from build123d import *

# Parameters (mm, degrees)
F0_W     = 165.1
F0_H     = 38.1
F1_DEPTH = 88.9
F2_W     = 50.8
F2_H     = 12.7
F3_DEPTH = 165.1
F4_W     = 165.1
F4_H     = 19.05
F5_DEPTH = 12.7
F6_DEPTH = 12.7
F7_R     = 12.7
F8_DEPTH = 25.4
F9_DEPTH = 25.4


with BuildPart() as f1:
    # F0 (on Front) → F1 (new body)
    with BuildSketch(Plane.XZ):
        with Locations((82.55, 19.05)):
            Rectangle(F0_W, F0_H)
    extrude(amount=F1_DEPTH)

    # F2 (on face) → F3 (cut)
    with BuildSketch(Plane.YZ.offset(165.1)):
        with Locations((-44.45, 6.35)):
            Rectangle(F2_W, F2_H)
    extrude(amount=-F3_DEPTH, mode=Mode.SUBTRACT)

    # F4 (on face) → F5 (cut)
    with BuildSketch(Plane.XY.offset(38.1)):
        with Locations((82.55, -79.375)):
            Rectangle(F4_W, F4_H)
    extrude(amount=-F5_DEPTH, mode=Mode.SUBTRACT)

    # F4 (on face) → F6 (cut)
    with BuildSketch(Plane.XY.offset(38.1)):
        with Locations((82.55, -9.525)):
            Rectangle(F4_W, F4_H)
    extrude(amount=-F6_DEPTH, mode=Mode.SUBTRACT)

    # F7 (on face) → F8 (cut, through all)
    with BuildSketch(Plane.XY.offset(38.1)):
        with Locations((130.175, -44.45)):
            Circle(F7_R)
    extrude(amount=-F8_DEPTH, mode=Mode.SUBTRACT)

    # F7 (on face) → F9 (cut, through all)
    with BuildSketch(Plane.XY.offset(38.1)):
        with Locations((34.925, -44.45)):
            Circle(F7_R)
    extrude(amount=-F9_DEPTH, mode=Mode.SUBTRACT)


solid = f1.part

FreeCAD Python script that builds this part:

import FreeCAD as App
import Part
import Sketcher
Q = App.Units.Quantity


def add_polygon(sketch, points):
    """Adds a closed chain of lines whose ends are joined by coincident constraints."""
    first, n = sketch.GeometryCount, len(points)
    for a, b in zip(points, points[1:] + points[:1]):
        sketch.addGeometry(Part.LineSegment(App.Vector(*a, 0), App.Vector(*b, 0)), False)
    for i in range(n):
        sketch.addConstraint(Sketcher.Constraint("Coincident", first + i, 2, first + (i + 1) % n, 1))

doc = App.newDocument("Part")
body = doc.addObject("PartDesign::Body", "Body")

sketch1 = body.newObject("Sketcher::SketchObject", "Sketch")
sketch1.AttachmentSupport = (doc.getObject("XZ_Plane"), [""])
sketch1.MapMode = "FlatFace"
add_polygon(sketch1, [(0, 38.1), (0, 0), (165.1, 0), (165.1, 38.1)])
sketch1.addConstraint([
    Sketcher.Constraint("Vertical", 0),
    Sketcher.Constraint("Horizontal", 1),
    Sketcher.Constraint("Vertical", 2),
    Sketcher.Constraint("Horizontal", 3),
    Sketcher.Constraint("Coincident", 0, 2, -1, 1),
    Sketcher.Constraint("DistanceX", 1, 1, 1, 2, Q("6.5 in")),
    Sketcher.Constraint("DistanceY", 0, 2, 0, 1, Q("1.5 in")),
])
pad1 = body.newObject("PartDesign::Pad", "Pad")
pad1.Profile = sketch1
pad1.Length = Q("3.5 in")

sketch2 = body.newObject("Sketcher::SketchObject", "Sketch001")
sketch2.AttachmentSupport = (doc.getObject("YZ_Plane"), [""])
sketch2.MapMode = "FlatFace"
sketch2.AttachmentOffset = App.Placement(App.Vector(0, 0, 6.5 * 25.4), App.Rotation())
add_polygon(sketch2, [(-69.85, 12.7), (-69.85, 0), (-19.05, 0), (-19.05, 12.7)])
sketch2.addConstraint([
    Sketcher.Constraint("Vertical", 0),
    Sketcher.Constraint("Horizontal", 1),
    Sketcher.Constraint("Vertical", 2),
    Sketcher.Constraint("Horizontal", 3),
    Sketcher.Constraint("PointOnObject", 0, 2, -1),
    Sketcher.Constraint("DistanceX", 1, 1, 1, 2, Q("2 in")),
    Sketcher.Constraint("DistanceY", 0, 2, 0, 1, Q("0.5 in")),
    Sketcher.Constraint("DistanceX", 0, 2, -1, 1, Q("2.75 in")),
])
pocket1 = body.newObject("PartDesign::Pocket", "Pocket")
pocket1.Profile = sketch2
pocket1.Length = Q("6.5 in")

sketch3 = body.newObject("Sketcher::SketchObject", "Sketch002")
sketch3.AttachmentSupport = (doc.getObject("XY_Plane"), [""])
sketch3.MapMode = "FlatFace"
sketch3.AttachmentOffset = App.Placement(App.Vector(0, 0, 1.5 * 25.4), App.Rotation())
add_polygon(sketch3, [(0, -69.85), (0, -88.9), (165.1, -88.9), (165.1, -69.85)])
sketch3.addConstraint([
    Sketcher.Constraint("Vertical", 0),
    Sketcher.Constraint("Horizontal", 1),
    Sketcher.Constraint("Vertical", 2),
    Sketcher.Constraint("Horizontal", 3),
    Sketcher.Constraint("PointOnObject", 0, 2, -2),
    Sketcher.Constraint("DistanceX", 1, 1, 1, 2, Q("6.5 in")),
    Sketcher.Constraint("DistanceY", 0, 2, 0, 1, Q("0.75 in")),
    Sketcher.Constraint("DistanceY", 0, 2, -1, 1, Q("3.5 in")),
])
pocket2 = body.newObject("PartDesign::Pocket", "Pocket001")
pocket2.Profile = sketch3
pocket2.Length = Q("0.5 in")

sketch4 = body.newObject("Sketcher::SketchObject", "Sketch003")
sketch4.AttachmentSupport = (doc.getObject("XY_Plane"), [""])
sketch4.MapMode = "FlatFace"
sketch4.AttachmentOffset = App.Placement(App.Vector(0, 0, 1.5 * 25.4), App.Rotation())
add_polygon(sketch4, [(0, 0), (0, -19.05), (165.1, -19.05), (165.1, 0)])
sketch4.addConstraint([
    Sketcher.Constraint("Vertical", 0),
    Sketcher.Constraint("Horizontal", 1),
    Sketcher.Constraint("Vertical", 2),
    Sketcher.Constraint("Horizontal", 3),
    Sketcher.Constraint("Coincident", 3, 2, -1, 1),
    Sketcher.Constraint("DistanceX", 1, 1, 1, 2, Q("6.5 in")),
    Sketcher.Constraint("DistanceY", 0, 2, 0, 1, Q("0.75 in")),
])
pocket3 = body.newObject("PartDesign::Pocket", "Pocket002")
pocket3.Profile = sketch4
pocket3.Length = Q("0.5 in")

sketch5 = body.newObject("Sketcher::SketchObject", "Sketch004")
sketch5.AttachmentSupport = (doc.getObject("XY_Plane"), [""])
sketch5.MapMode = "FlatFace"
sketch5.AttachmentOffset = App.Placement(App.Vector(0, 0, 1.5 * 25.4), App.Rotation())
sketch5.addGeometry(Part.Circle(App.Vector(130.175, -44.45, 0), App.Vector(0, 0, 1), 12.7), False)
sketch5.addConstraint([
    Sketcher.Constraint("Diameter", 0, Q("1 in")),
    Sketcher.Constraint("DistanceY", 0, 3, -1, 1, Q("1.75 in")),
    Sketcher.Constraint("DistanceX", -1, 1, 0, 3, Q("5.125 in")),
])
pocket4 = body.newObject("PartDesign::Pocket", "Pocket003")
pocket4.Profile = sketch5
pocket4.Type = "ThroughAll"

sketch6 = body.newObject("Sketcher::SketchObject", "Sketch005")
sketch6.AttachmentSupport = (doc.getObject("XY_Plane"), [""])
sketch6.MapMode = "FlatFace"
sketch6.AttachmentOffset = App.Placement(App.Vector(0, 0, 1.5 * 25.4), App.Rotation())
sketch6.addGeometry(Part.Circle(App.Vector(34.925, -44.45, 0), App.Vector(0, 0, 1), 12.7), False)
sketch6.addConstraint([
    Sketcher.Constraint("Diameter", 0, Q("1 in")),
    Sketcher.Constraint("DistanceY", 0, 3, -1, 1, Q("1.75 in")),
    Sketcher.Constraint("DistanceX", -1, 1, 0, 3, Q("1.375 in")),
])
pocket5 = body.newObject("PartDesign::Pocket", "Pocket004")
pocket5.Profile = sketch6
pocket5.Type = "ThroughAll"

doc.recompute()
